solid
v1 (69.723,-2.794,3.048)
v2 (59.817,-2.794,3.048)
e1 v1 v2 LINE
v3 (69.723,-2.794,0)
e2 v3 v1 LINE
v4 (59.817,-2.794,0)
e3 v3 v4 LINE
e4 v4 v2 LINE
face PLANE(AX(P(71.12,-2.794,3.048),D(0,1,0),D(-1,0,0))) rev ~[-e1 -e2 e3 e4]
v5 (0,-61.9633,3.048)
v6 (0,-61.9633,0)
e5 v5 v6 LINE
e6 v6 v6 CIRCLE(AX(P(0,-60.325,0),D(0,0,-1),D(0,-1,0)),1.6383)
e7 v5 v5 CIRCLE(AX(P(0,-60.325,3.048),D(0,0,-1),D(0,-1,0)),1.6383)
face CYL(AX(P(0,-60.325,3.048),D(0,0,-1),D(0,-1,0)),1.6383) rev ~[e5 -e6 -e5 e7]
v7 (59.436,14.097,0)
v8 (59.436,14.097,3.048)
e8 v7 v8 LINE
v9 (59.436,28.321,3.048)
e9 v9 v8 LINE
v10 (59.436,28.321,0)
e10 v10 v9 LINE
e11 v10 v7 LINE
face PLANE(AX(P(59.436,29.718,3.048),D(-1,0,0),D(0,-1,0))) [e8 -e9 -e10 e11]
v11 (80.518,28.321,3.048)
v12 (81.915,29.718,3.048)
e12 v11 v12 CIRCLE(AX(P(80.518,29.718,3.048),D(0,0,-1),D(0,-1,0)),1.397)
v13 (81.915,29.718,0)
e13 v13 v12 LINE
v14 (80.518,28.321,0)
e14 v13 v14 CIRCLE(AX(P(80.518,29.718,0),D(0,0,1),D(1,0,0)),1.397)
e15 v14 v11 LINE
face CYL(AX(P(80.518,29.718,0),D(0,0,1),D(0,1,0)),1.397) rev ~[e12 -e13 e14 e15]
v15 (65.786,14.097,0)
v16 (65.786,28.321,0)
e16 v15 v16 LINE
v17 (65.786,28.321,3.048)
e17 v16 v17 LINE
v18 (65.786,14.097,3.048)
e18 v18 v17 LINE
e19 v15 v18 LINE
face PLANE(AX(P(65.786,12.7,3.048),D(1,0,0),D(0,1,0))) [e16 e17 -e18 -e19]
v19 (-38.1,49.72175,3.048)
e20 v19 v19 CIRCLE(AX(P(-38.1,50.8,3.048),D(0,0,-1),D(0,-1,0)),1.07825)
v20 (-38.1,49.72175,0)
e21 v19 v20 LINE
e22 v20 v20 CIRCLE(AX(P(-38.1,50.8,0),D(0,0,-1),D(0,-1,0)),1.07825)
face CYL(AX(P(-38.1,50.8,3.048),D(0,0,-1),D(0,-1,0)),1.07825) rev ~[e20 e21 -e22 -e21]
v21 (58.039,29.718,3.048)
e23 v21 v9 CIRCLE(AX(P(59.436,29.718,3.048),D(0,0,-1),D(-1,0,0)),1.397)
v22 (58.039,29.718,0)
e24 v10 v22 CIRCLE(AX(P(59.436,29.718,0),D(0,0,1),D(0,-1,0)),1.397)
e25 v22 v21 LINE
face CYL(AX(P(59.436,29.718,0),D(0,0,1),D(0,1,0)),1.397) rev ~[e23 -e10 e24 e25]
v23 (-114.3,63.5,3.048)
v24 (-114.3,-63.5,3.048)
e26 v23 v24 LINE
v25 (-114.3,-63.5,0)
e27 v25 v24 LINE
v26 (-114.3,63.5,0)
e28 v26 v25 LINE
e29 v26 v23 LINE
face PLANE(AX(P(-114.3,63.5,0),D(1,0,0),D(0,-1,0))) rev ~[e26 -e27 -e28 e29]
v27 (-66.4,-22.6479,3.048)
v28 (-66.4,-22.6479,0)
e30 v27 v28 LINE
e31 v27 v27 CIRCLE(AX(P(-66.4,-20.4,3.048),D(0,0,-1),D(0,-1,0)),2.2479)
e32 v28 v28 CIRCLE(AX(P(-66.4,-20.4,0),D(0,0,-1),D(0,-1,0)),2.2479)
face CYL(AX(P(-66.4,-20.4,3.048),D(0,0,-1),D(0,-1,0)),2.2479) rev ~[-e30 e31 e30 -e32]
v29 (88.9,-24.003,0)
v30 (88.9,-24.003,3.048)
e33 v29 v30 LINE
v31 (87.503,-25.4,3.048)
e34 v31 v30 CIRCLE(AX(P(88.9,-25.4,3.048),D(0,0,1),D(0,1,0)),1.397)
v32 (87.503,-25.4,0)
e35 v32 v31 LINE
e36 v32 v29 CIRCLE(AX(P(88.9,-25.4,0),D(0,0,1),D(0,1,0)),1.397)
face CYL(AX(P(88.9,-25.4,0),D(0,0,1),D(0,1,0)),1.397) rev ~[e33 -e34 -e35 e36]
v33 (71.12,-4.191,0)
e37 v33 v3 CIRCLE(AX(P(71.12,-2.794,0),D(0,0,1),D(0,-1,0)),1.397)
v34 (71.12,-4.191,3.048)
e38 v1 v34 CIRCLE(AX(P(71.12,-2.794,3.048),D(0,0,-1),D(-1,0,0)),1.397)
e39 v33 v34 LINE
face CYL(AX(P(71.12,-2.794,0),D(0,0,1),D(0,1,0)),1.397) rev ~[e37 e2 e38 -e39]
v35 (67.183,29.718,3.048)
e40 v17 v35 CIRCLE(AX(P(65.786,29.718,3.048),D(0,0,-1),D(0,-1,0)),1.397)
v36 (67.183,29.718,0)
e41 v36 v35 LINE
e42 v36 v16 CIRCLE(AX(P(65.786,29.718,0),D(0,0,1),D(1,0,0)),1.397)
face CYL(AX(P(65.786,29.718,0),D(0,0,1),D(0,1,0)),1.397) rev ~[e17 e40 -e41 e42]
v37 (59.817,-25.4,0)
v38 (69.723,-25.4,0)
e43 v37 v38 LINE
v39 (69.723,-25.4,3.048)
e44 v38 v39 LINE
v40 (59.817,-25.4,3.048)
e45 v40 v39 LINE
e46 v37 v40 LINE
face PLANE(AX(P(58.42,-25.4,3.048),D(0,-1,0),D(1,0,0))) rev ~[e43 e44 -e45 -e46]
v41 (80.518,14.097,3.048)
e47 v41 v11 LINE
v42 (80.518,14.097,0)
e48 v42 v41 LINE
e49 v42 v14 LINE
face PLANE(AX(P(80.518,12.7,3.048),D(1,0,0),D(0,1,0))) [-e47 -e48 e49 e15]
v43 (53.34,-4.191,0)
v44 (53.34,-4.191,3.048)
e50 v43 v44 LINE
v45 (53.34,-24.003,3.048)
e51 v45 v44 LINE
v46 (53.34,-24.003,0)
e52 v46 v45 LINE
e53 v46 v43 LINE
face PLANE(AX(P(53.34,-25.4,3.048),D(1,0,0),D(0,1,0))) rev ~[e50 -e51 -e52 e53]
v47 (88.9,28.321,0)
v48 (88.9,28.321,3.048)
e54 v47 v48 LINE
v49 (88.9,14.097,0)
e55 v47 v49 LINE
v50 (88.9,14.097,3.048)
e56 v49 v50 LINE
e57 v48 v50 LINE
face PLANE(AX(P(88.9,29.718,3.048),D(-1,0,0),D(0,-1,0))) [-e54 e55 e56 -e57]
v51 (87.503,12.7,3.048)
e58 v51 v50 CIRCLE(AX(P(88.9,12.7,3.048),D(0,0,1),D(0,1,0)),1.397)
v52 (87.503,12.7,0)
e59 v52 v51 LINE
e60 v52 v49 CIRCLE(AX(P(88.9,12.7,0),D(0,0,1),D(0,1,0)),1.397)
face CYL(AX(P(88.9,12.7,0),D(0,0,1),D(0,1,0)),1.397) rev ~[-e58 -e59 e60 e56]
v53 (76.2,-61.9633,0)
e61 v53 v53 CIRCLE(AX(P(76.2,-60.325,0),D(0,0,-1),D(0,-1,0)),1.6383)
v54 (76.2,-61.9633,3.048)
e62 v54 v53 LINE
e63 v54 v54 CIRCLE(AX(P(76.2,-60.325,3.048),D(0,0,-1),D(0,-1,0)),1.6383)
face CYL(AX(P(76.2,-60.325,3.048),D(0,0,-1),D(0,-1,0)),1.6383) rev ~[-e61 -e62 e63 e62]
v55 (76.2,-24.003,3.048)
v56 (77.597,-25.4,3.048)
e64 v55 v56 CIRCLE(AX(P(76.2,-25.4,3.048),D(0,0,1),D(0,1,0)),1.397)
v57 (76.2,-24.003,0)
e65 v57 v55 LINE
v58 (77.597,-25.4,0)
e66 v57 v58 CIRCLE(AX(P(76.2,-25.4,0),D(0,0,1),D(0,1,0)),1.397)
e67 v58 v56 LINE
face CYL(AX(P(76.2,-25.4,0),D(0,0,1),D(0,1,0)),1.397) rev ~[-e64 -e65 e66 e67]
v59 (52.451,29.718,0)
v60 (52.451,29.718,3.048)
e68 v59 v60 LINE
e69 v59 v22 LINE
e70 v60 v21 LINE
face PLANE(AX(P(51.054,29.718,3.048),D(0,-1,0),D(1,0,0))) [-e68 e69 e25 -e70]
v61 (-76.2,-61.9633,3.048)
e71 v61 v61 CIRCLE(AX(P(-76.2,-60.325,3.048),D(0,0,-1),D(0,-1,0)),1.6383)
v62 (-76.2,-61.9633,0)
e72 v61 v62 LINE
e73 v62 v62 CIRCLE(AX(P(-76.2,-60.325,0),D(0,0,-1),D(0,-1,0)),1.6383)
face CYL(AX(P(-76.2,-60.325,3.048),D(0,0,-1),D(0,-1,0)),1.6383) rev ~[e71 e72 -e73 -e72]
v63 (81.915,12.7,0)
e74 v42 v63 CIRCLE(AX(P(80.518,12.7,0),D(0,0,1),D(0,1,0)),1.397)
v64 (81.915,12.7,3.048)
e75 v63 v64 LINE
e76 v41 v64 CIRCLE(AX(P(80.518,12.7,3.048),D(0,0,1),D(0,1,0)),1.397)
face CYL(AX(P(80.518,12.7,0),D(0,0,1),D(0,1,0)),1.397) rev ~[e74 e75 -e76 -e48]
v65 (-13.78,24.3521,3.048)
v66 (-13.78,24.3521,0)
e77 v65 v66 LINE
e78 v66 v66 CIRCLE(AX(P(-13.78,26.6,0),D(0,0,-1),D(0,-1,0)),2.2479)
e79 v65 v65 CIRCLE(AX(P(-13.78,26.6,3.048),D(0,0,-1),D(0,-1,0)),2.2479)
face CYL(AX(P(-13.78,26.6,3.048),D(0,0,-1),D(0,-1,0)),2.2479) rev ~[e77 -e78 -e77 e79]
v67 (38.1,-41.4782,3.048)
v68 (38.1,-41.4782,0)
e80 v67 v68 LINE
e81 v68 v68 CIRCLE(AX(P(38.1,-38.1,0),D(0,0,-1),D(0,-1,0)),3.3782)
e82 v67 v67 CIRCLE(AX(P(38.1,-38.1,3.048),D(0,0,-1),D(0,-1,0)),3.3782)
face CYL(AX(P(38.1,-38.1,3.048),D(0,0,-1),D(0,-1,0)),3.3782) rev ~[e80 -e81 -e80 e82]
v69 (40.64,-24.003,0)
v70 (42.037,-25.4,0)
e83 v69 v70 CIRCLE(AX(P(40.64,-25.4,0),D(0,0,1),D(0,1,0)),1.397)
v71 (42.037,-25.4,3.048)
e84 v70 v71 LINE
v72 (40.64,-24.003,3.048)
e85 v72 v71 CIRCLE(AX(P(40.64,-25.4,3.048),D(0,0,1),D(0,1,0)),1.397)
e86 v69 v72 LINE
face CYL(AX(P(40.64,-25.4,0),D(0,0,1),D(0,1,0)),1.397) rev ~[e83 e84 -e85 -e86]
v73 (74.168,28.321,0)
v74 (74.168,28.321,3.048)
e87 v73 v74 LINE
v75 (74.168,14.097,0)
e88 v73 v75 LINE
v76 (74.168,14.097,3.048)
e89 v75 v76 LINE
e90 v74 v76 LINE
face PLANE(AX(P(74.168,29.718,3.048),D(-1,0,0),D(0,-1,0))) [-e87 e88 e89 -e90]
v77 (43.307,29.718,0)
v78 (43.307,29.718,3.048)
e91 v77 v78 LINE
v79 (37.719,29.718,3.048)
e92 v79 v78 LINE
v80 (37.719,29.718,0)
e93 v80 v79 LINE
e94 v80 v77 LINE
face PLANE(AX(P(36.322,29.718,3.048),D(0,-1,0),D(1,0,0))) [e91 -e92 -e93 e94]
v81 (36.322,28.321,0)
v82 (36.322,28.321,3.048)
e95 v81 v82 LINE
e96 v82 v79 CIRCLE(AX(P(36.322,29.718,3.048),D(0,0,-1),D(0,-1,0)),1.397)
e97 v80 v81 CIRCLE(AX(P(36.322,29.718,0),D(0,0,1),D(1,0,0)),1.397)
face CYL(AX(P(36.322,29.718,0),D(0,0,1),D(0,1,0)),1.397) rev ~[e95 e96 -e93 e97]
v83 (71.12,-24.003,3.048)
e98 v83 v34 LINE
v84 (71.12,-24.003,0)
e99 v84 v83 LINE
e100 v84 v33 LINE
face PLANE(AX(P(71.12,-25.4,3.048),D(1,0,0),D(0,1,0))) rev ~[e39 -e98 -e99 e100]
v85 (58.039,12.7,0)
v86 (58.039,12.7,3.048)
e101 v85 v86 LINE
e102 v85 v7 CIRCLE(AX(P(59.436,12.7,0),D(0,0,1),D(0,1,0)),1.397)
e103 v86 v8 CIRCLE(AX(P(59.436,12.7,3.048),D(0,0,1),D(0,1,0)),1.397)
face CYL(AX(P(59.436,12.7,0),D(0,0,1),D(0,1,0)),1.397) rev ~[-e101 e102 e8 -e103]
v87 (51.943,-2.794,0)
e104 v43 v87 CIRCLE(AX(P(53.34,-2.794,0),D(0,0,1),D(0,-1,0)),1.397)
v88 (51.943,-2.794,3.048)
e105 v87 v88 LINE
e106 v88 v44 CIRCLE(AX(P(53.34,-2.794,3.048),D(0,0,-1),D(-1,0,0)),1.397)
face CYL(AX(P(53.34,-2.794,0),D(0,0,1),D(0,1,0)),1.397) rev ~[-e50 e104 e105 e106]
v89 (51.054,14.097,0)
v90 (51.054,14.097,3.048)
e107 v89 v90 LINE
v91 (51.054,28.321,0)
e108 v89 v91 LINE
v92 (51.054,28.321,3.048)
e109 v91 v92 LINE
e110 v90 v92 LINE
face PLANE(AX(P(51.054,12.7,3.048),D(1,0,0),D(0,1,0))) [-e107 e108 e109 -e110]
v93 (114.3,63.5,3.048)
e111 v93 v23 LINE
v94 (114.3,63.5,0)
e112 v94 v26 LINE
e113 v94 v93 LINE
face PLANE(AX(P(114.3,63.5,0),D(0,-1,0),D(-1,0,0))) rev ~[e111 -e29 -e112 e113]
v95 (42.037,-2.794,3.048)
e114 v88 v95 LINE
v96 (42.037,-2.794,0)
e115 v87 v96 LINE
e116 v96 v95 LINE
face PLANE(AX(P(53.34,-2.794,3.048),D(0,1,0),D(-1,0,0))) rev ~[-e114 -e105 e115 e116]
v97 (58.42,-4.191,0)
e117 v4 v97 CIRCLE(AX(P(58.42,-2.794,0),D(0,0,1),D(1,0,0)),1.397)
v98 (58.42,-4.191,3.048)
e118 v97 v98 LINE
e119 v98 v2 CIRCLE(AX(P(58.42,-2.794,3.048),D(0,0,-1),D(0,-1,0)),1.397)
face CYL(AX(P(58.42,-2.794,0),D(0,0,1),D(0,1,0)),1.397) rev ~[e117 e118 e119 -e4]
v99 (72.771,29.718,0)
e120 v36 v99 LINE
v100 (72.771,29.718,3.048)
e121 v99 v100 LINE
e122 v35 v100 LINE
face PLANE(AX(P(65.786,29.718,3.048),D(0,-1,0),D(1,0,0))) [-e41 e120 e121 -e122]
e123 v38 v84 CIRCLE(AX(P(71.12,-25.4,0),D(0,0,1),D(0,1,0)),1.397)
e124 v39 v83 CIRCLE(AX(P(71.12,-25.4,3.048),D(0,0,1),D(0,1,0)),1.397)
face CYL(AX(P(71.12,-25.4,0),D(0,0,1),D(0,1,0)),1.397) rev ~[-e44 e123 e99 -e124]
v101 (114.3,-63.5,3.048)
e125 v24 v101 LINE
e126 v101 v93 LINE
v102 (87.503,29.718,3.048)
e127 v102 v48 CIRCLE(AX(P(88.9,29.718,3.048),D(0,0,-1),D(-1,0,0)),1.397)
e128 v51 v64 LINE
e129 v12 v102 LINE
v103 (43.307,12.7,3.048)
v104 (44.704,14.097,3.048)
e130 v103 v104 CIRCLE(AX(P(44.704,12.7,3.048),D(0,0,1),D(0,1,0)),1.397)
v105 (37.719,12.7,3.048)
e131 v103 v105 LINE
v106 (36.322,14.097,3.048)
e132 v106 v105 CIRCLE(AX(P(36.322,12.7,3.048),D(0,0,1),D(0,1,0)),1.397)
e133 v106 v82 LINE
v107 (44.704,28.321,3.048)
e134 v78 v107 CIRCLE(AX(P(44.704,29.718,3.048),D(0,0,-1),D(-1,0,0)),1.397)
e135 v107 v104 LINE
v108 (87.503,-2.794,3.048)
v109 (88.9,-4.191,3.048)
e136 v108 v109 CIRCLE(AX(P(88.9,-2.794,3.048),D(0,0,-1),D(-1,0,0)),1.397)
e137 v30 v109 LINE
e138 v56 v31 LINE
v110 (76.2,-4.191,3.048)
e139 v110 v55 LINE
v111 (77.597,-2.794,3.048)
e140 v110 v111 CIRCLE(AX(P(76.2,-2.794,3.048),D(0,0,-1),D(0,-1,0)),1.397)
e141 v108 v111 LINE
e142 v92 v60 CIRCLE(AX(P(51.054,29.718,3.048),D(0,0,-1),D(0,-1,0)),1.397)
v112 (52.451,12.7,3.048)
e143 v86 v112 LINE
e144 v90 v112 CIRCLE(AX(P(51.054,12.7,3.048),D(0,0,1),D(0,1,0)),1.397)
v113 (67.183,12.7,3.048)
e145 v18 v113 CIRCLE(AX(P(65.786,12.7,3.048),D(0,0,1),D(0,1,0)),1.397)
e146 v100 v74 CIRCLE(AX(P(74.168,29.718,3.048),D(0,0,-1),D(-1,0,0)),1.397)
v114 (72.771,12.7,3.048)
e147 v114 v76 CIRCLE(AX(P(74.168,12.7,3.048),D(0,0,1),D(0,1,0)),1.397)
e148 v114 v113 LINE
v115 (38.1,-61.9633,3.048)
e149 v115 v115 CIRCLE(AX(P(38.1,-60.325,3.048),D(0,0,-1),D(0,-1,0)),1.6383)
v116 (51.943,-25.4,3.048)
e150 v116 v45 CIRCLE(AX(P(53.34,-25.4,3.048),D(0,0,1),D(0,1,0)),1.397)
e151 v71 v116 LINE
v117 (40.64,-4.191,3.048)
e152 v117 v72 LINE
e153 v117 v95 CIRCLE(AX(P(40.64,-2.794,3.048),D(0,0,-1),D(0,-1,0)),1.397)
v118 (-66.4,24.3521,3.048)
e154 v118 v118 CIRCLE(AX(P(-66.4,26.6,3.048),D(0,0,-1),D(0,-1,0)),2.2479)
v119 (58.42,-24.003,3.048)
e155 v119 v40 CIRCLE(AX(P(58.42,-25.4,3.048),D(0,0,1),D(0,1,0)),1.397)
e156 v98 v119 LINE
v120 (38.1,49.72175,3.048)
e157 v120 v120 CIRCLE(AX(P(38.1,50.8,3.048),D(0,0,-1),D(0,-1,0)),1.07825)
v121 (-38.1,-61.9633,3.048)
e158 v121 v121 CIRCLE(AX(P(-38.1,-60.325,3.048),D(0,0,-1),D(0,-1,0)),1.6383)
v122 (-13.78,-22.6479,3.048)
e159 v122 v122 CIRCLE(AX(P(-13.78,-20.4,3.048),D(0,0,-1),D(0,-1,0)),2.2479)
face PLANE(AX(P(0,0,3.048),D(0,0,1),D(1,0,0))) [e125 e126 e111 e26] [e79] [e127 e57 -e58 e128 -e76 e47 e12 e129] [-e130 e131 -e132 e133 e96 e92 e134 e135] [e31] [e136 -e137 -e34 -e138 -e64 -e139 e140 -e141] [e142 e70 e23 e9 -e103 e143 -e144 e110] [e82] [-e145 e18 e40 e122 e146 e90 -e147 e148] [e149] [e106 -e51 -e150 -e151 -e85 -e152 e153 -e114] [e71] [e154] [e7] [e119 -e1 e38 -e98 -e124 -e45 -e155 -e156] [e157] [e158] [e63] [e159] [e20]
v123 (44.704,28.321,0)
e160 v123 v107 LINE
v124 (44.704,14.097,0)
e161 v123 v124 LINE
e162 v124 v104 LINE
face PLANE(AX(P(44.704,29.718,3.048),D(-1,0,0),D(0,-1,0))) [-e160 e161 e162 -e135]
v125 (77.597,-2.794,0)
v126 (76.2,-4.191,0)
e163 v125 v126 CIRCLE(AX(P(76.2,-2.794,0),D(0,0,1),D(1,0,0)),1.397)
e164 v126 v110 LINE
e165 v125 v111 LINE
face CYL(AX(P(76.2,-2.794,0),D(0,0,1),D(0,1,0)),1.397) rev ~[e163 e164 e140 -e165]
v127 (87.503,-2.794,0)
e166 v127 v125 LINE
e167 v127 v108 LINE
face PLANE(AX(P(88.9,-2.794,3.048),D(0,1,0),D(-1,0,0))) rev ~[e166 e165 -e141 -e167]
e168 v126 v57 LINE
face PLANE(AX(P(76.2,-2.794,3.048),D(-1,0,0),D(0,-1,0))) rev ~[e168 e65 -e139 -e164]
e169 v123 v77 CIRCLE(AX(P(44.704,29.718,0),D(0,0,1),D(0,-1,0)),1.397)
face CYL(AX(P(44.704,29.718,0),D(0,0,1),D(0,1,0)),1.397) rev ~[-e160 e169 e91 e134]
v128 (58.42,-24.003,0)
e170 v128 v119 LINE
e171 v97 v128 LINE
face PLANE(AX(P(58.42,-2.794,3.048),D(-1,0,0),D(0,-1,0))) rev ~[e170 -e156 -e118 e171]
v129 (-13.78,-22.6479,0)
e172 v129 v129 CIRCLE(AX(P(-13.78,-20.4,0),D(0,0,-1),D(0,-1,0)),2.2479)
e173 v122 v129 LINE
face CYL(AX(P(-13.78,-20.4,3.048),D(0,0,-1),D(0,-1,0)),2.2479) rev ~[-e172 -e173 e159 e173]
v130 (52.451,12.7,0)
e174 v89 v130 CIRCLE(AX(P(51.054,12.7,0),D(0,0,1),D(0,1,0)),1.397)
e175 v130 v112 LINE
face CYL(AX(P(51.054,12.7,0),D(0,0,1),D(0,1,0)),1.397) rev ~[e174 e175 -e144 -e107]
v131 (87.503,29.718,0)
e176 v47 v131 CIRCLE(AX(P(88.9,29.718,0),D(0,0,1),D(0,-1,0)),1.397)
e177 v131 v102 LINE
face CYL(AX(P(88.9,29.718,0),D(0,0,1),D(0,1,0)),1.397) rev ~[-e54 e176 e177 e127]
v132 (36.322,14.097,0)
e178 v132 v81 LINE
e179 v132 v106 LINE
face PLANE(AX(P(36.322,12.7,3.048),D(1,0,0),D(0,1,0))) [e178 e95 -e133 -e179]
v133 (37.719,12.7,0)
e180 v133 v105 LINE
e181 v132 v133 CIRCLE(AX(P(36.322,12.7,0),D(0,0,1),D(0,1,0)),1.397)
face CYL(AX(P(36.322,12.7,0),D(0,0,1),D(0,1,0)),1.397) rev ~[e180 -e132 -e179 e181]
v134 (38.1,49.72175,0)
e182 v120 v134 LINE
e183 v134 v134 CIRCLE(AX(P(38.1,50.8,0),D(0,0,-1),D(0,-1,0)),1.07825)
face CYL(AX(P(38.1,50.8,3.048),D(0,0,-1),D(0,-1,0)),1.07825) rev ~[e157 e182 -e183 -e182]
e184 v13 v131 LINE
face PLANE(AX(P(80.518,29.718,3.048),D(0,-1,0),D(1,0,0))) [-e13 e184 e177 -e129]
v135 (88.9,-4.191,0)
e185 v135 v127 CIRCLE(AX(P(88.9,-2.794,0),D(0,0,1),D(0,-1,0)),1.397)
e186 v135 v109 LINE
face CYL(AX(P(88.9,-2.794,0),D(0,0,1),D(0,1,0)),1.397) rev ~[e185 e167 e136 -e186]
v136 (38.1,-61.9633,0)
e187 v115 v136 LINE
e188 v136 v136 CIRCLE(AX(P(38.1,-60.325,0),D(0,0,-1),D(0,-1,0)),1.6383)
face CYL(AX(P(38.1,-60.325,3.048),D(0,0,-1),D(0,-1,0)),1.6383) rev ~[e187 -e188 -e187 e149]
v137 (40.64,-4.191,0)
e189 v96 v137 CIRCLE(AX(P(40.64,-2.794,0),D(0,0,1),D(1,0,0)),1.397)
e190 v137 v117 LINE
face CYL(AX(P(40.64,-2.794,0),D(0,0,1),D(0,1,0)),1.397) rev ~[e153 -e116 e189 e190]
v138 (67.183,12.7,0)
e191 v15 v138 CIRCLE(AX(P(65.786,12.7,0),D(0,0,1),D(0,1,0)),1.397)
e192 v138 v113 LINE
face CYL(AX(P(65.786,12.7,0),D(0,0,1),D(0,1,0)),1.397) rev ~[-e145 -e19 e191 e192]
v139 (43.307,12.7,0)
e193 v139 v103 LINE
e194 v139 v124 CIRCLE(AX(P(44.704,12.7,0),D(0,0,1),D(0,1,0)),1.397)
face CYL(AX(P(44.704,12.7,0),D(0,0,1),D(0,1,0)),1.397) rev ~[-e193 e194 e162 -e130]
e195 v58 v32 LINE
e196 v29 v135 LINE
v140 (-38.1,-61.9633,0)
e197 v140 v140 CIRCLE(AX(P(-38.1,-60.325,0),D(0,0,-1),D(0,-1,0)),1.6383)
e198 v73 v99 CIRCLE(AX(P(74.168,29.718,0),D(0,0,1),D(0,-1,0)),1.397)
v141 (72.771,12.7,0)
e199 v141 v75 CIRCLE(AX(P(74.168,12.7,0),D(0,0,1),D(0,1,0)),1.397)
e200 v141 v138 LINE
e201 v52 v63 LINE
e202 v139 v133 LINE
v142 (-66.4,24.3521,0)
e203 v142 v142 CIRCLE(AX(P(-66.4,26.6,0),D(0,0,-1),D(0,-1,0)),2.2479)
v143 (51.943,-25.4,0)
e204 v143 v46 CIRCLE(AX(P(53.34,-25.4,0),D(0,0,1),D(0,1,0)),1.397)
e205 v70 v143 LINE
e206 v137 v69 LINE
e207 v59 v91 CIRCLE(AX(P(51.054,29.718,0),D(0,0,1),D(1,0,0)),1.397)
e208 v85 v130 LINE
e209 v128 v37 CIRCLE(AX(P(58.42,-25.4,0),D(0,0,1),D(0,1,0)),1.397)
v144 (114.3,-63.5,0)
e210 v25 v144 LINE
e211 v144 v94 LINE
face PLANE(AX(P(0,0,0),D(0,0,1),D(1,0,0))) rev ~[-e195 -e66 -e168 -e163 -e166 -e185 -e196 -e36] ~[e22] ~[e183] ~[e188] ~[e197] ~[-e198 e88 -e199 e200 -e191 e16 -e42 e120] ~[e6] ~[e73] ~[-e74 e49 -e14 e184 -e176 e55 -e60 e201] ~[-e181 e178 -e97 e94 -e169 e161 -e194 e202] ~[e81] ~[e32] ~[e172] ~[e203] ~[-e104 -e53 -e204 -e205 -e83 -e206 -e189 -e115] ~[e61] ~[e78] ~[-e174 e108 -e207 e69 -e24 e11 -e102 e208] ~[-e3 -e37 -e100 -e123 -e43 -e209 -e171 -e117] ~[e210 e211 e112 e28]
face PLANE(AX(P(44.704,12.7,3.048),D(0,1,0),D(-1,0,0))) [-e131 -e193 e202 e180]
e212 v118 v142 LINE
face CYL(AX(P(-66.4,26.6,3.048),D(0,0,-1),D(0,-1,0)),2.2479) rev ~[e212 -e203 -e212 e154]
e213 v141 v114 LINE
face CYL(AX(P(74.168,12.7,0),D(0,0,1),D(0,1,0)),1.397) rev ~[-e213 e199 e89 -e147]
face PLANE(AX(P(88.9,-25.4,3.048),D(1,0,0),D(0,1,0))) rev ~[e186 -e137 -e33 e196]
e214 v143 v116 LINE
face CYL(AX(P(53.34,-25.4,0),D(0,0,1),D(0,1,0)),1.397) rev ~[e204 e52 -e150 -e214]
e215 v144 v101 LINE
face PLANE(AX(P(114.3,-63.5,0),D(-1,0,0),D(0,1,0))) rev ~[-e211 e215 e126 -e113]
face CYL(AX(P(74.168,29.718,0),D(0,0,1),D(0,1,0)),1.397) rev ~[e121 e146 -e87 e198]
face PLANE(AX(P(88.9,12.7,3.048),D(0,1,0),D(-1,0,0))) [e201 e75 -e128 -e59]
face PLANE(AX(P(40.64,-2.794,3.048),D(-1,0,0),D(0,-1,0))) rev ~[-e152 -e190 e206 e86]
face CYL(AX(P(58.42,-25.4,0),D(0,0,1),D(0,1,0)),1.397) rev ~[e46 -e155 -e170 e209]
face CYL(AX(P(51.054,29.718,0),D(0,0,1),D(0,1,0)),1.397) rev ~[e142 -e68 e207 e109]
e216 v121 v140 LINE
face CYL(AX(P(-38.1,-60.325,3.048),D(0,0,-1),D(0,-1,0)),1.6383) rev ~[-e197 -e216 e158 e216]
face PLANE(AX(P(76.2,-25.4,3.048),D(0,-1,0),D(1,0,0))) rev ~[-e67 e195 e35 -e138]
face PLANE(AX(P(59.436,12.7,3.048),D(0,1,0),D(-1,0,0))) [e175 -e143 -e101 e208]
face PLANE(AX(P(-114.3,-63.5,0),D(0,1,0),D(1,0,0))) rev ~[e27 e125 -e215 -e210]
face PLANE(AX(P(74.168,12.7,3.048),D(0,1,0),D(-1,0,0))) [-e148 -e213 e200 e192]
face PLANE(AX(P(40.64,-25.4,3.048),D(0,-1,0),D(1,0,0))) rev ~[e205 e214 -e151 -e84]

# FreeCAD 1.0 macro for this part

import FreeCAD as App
import Part
import Sketcher
Q = App.Units.Quantity

doc = App.newDocument("Part")
body = doc.addObject("PartDesign::Body", "Body")

# Sketch on XY plane
sketch1 = body.newObject("Sketcher::SketchObject", "Sketch")
sketch1.AttachmentSupport = (doc.getObject("XY_Plane"), [""])
sketch1.MapMode = "FlatFace"
sketch1.addGeometry([
    Part.LineSegment(App.Vector(114.3, -63.5, 0), App.Vector(114.3, 63.5, 0)),
    Part.LineSegment(App.Vector(114.3, 63.5, 0), App.Vector(-114.3, 63.5, 0)),
    Part.LineSegment(App.Vector(-114.3, 63.5, 0), App.Vector(-114.3, -63.5, 0)),
    Part.LineSegment(App.Vector(-114.3, -63.5, 0), App.Vector(114.3, -63.5, 0)),
], False)
sketch1.addConstraint([
    Sketcher.Constraint("Coincident", 0, 2, 1, 1),
    Sketcher.Constraint("Coincident", 1, 2, 2, 1),
    Sketcher.Constraint("Coincident", 2, 2, 3, 1),
    Sketcher.Constraint("Coincident", 3, 2, 0, 1),
    Sketcher.Constraint("Vertical", 0),
    Sketcher.Constraint("Horizontal", 1),
    Sketcher.Constraint("Vertical", 2),
    Sketcher.Constraint("Horizontal", 3),
    Sketcher.Constraint("Symmetric", 0, 2, 2, 2, -1, 1),
    Sketcher.Constraint("DistanceX", 1, 2, 1, 1, Q("9 in")),
    Sketcher.Constraint("DistanceY", 0, 1, 0, 2, Q("5 in")),
])
pad1 = body.newObject("PartDesign::Pad", "Pad")
pad1.Profile = sketch1
pad1.Length = Q("0.12 in")

# Sketch on XY plane
sketch2 = body.newObject("Sketcher::SketchObject", "Sketch001")
sketch2.AttachmentSupport = (doc.getObject("XY_Plane"), [""])
sketch2.MapMode = "FlatFace"
sketch2.AttachmentOffset = App.Placement(App.Vector(0, 0, 0.12 * 25.4), App.Rotation())
sketch2.addGeometry([
    Part.Circle(App.Vector(-76.2, -60.325, 0), App.Vector(0, 0, 1), 1.6383),  # 0
    Part.Circle(App.Vector(-38.1, -60.325, 0), App.Vector(0, 0, 1), 1.6383),  # 1
    Part.Circle(App.Vector(0, -60.325, 0), App.Vector(0, 0, 1), 1.6383),  # 2
    Part.Circle(App.Vector(38.1, -60.325, 0), App.Vector(0, 0, 1), 1.6383),  # 3
    Part.Circle(App.Vector(76.2, -60.325, 0), App.Vector(0, 0, 1), 1.6383),  # 4
], False)
sketch2.addConstraint([
    Sketcher.Constraint("Equal", 0, 1),
    Sketcher.Constraint("Equal", 1, 2),
    Sketcher.Constraint("Equal", 2, 3),
    Sketcher.Constraint("Equal", 3, 4),
    Sketcher.Constraint("Symmetric", 1, 3, 3, 3, -2),
    Sketcher.Constraint("Symmetric", 0, 3, 4, 3, -2),
    Sketcher.Constraint("PointOnObject", 2, 3, -2),
    Sketcher.Constraint("Horizontal", 0, 3, 1, 3),
    Sketcher.Constraint("Horizontal", 1, 3, 2, 3),
    Sketcher.Constraint("Diameter", 0, Q("0.129 in")),
    Sketcher.Constraint("DistanceX", 0, 3, -1, 1, Q("3 in")),
    Sketcher.Constraint("DistanceX", 1, 3, 3, 3, Q("3 in")),
    Sketcher.Constraint("DistanceY", 0, 3, -1, 1, Q("2.375 in")),
])
doc.recompute()
hole = body.newObject("PartDesign::Hole", "Hole")
hole.Profile = sketch2
hole.ThreadType = "None"
hole.Diameter = Q("0.129 in")
hole.DepthType = "Dimension"
hole.Depth = Q("0.12 in")
hole.DrillPoint = "Flat"

# Sketch on XY plane
sketch3 = body.newObject("Sketcher::SketchObject", "Sketch002")
sketch3.AttachmentSupport = (doc.getObject("XY_Plane"), [""])
sketch3.MapMode = "FlatFace"
sketch3.AttachmentOffset = App.Placement(App.Vector(0, 0, 0.12 * 25.4), App.Rotation())
sketch3.addGeometry([
    Part.Circle(App.Vector(-66.4, 26.6, 0), App.Vector(0, 0, 1), 2.2479),
    Part.Circle(App.Vector(-13.78, 26.6, 0), App.Vector(0, 0, 1), 2.2479),
    Part.Circle(App.Vector(-13.78, -20.4, 0), App.Vector(0, 0, 1), 2.2479),
    Part.Circle(App.Vector(-66.4, -20.4, 0), App.Vector(0, 0, 1), 2.2479),
], False)
sketch3.addConstraint([
    Sketcher.Constraint("Equal", 0, 1),
    Sketcher.Constraint("Equal", 1, 2),
    Sketcher.Constraint("Equal", 2, 3),
    Sketcher.Constraint("Horizontal", 0, 3, 1, 3),
    Sketcher.Constraint("Horizontal", 2, 3, 3, 3),
    Sketcher.Constraint("Vertical", 1, 3, 2, 3),
    Sketcher.Constraint("Vertical", 0, 3, 3, 3),
    Sketcher.Constraint("Diameter", 0, Q("0.177 in")),
    Sketcher.Constraint("DistanceY", 2, 3, 1, 3, Q("1.8504 in")),
    Sketcher.Constraint("DistanceX", 0, 3, -1, 1, 66.4),
    Sketcher.Constraint("DistanceY", -1, 1, 0, 3, 26.6),
    Sketcher.Constraint("DistanceX", 1, 3, -1, 1, 13.78),
])
doc.recompute()
hole2 = body.newObject("PartDesign::Hole", "Hole001")
hole2.Profile = sketch3
hole2.ThreadType = "None"
hole2.Diameter = Q("0.177 in")
hole2.DepthType = "Dimension"
hole2.Depth = Q("0.12 in")
hole2.DrillPoint = "Flat"

# Sketch on XY plane
sketch4 = body.newObject("Sketcher::SketchObject", "Sketch003")
sketch4.AttachmentSupport = (doc.getObject("XY_Plane"), [""])
sketch4.MapMode = "FlatFace"
sketch4.AttachmentOffset = App.Placement(App.Vector(0, 0, 0.12 * 25.4), App.Rotation())
sketch4.addGeometry([
    Part.LineSegment(App.Vector(76.2, -25.4, 0), App.Vector(88.9, -25.4, 0)),  # 0
    Part.LineSegment(App.Vector(88.9, -25.4, 0), App.Vector(88.9, -2.794, 0)),  # 1
    Part.LineSegment(App.Vector(88.9, -2.794, 0), App.Vector(76.2, -2.794, 0)),  # 2
    Part.LineSegment(App.Vector(76.2, -2.794, 0), App.Vector(76.2, -25.4, 0)),  # 3
    Part.LineSegment(App.Vector(53.34, -25.4, 0), App.Vector(53.34, -2.794, 0)),  # 4
    Part.LineSegment(App.Vector(53.34, -2.794, 0), App.Vector(40.64, -2.794, 0)),  # 5
    Part.LineSegment(App.Vector(40.64, -2.794, 0), App.Vector(40.64, -25.4, 0)),  # 6
    Part.LineSegment(App.Vector(40.64, -25.4, 0), App.Vector(53.34, -25.4, 0)),  # 7
    Part.LineSegment(App.Vector(71.12, -25.4, 0), App.Vector(71.12, -2.794, 0)),  # 8
    Part.LineSegment(App.Vector(71.12, -2.794, 0), App.Vector(58.42, -2.794, 0)),  # 9
    Part.LineSegment(App.Vector(58.42, -2.794, 0), App.Vector(58.42, -25.4, 0)),  # 10
    Part.LineSegment(App.Vector(58.42, -25.4, 0), App.Vector(71.12, -25.4, 0)),  # 11
], False)
sketch4.addConstraint([
    Sketcher.Constraint("Coincident", 0, 2, 1, 1),
    Sketcher.Constraint("Coincident", 1, 2, 2, 1),
    Sketcher.Constraint("Coincident", 2, 2, 3, 1),
    Sketcher.Constraint("Coincident", 3, 2, 0, 1),
    Sketcher.Constraint("Coincident", 4, 2, 5, 1),
    Sketcher.Constraint("Coincident", 5, 2, 6, 1),
    Sketcher.Constraint("Coincident", 6, 2, 7, 1),
    Sketcher.Constraint("Coincident", 7, 2, 4, 1),
    Sketcher.Constraint("Coincident", 8, 2, 9, 1),
    Sketcher.Constraint("Coincident", 9, 2, 10, 1),
    Sketcher.Constraint("Coincident", 10, 2, 11, 1),
    Sketcher.Constraint("Coincident", 11, 2, 8, 1),
    Sketcher.Constraint("Horizontal", 0),
    Sketcher.Constraint("Vertical", 1),
    Sketcher.Constraint("Horizontal", 2),
    Sketcher.Constraint("Vertical", 3),
    Sketcher.Constraint("Vertical", 4),
    Sketcher.Constraint("Horizontal", 5),
    Sketcher.Constraint("Vertical", 6),
    Sketcher.Constraint("Horizontal", 7),
    Sketcher.Constraint("Vertical", 8),
    Sketcher.Constraint("Horizontal", 9),
    Sketcher.Constraint("Vertical", 10),
    Sketcher.Constraint("Horizontal", 11),
    Sketcher.Constraint("Horizontal", 2, 2, 4, 2),
    Sketcher.Constraint("Horizontal", 3, 2, 6, 2),
    Sketcher.Constraint("Horizontal", 5, 2, 8, 2),
    Sketcher.Constraint("Horizontal", 7, 2, 10, 2),
    Sketcher.Constraint("Equal", 2, 5),
    Sketcher.Constraint("Equal", 7, 9),
    Sketcher.Constraint("DistanceX", 0, 1, 0, 2, Q("0.5 in")),
    Sketcher.Constraint("DistanceY", 0, 2, -1, 1, Q("1 in")),
    Sketcher.Constraint("DistanceY", 1, 1, 1, 2, Q("0.89 in")),
    Sketcher.Constraint("DistanceX", 8, 2, 2, 2, Q("0.2 in")),
    Sketcher.Constraint("DistanceX", 4, 2, 9, 2, Q("0.2 in")),
    Sketcher.Constraint("DistanceX", -1, 1, 2, 2, Q("3 in")),
])
pocket1 = body.newObject("PartDesign::Pocket", "Pocket")
pocket1.Profile = sketch4
pocket1.Length = Q("0.12 in")

# Sketch on XY plane
sketch5 = body.newObject("Sketcher::SketchObject", "Sketch004")
sketch5.AttachmentSupport = (doc.getObject("XY_Plane"), [""])
sketch5.MapMode = "FlatFace"
sketch5.AttachmentOffset = App.Placement(App.Vector(0, 0, 0.12 * 25.4), App.Rotation())
sketch5.addGeometry([
    Part.LineSegment(App.Vector(44.704, 12.7, 0), App.Vector(44.704, 29.718, 0)),  # 0
    Part.LineSegment(App.Vector(44.704, 29.718, 0), App.Vector(36.322, 29.718, 0)),  # 1
    Part.LineSegment(App.Vector(36.322, 29.718, 0), App.Vector(36.322, 12.7, 0)),  # 2
    Part.LineSegment(App.Vector(36.322, 12.7, 0), App.Vector(44.704, 12.7, 0)),  # 3
    Part.LineSegment(App.Vector(59.436, 12.7, 0), App.Vector(59.436, 29.718, 0)),  # 4
    Part.LineSegment(App.Vector(59.436, 29.718, 0), App.Vector(51.054, 29.718, 0)),  # 5
    Part.LineSegment(App.Vector(51.054, 29.718, 0), App.Vector(51.054, 12.7, 0)),  # 6
    Part.LineSegment(App.Vector(51.054, 12.7, 0), App.Vector(59.436, 12.7, 0)),  # 7
    Part.LineSegment(App.Vector(74.168, 12.7, 0), App.Vector(74.168, 29.718, 0)),  # 8
    Part.LineSegment(App.Vector(74.168, 29.718, 0), App.Vector(65.786, 29.718, 0)),  # 9
    Part.LineSegment(App.Vector(65.786, 29.718, 0), App.Vector(65.786, 12.7, 0)),  # 10
    Part.LineSegment(App.Vector(65.786, 12.7, 0), App.Vector(74.168, 12.7, 0)),  # 11
    Part.LineSegment(App.Vector(80.518, 12.7, 0), App.Vector(88.9, 12.7, 0)),  # 12
    Part.LineSegment(App.Vector(88.9, 12.7, 0), App.Vector(88.9, 29.718, 0)),  # 13
    Part.LineSegment(App.Vector(88.9, 29.718, 0), App.Vector(80.518, 29.718, 0)),  # 14
    Part.LineSegment(App.Vector(80.518, 29.718, 0), App.Vector(80.518, 12.7, 0)),  # 15
], False)
sketch5.addConstraint([
    Sketcher.Constraint("Coincident", 0, 2, 1, 1),
    Sketcher.Constraint("Coincident", 1, 2, 2, 1),
    Sketcher.Constraint("Coincident", 2, 2, 3, 1),
    Sketcher.Constraint("Coincident", 3, 2, 0, 1),
    Sketcher.Constraint("Coincident", 4, 2, 5, 1),
    Sketcher.Constraint("Coincident", 5, 2, 6, 1),
    Sketcher.Constraint("Coincident", 6, 2, 7, 1),
    Sketcher.Constraint("Coincident", 7, 2, 4, 1),
    Sketcher.Constraint("Coincident", 8, 2, 9, 1),
    Sketcher.Constraint("Coincident", 9, 2, 10, 1),
    Sketcher.Constraint("Coincident", 10, 2, 11, 1),
    Sketcher.Constraint("Coincident", 11, 2, 8, 1),
    Sketcher.Constraint("Coincident", 12, 2, 13, 1),
    Sketcher.Constraint("Coincident", 13, 2, 14, 1),
    Sketcher.Constraint("Coincident", 14, 2, 15, 1),
    Sketcher.Constraint("Coincident", 15, 2, 12, 1),
    Sketcher.Constraint("Vertical", 0),
    Sketcher.Constraint("Horizontal", 1),
    Sketcher.Constraint("Vertical", 2),
    Sketcher.Constraint("Horizontal", 3),
    Sketcher.Constraint("Vertical", 4),
    Sketcher.Constraint("Horizontal", 5),
    Sketcher.Constraint("Vertical", 6),
    Sketcher.Constraint("Horizontal", 7),
    Sketcher.Constraint("Vertical", 8),
    Sketcher.Constraint("Horizontal", 9),
    Sketcher.Constraint("Vertical", 10),
    Sketcher.Constraint("Horizontal", 11),
    Sketcher.Constraint("Horizontal", 12),
    Sketcher.Constraint("Vertical", 13),
    Sketcher.Constraint("Horizontal", 14),
    Sketcher.Constraint("Vertical", 15),
    Sketcher.Constraint("Horizontal", 1, 2, 4, 2),
    Sketcher.Constraint("Horizontal", 3, 2, 6, 2),
    Sketcher.Constraint("Horizontal", 5, 2, 8, 2),
    Sketcher.Constraint("Horizontal", 7, 2, 10, 2),
    Sketcher.Constraint("Horizontal", 11, 2, 12, 2),
    Sketcher.Constraint("Horizontal", 9, 2, 13, 2),
    Sketcher.Constraint("Equal", 3, 5),
    Sketcher.Constraint("Equal", 7, 9),
    Sketcher.Constraint("Equal", 11, 12),
    Sketcher.Constraint("DistanceX", 1, 2, 1, 1, Q("0.33 in")),
    Sketcher.Constraint("DistanceY", 0, 1, 0, 2, Q("0.67 in")),
    Sketcher.Constraint("DistanceX", 0, 2, 5, 2, Q("0.25 in")),
    Sketcher.Constraint("DistanceX", 4, 2, 9, 2, Q("0.25 in")),
    Sketcher.Constraint("DistanceX", 8, 2, 14, 2, Q("0.25 in")),
    Sketcher.Constraint("DistanceY", -1, 1, 2, 2, Q("0.5 in")),
    Sketcher.Constraint("DistanceX", -1, 1, 12, 2, Q("3.5 in")),
])
pocket2 = body.newObject("PartDesign::Pocket", "Pocket001")
pocket2.Profile = sketch5
pocket2.Length = Q("0.12 in")

# Sketch on XY plane
sketch6 = body.newObject("Sketcher::SketchObject", "Sketch005")
sketch6.AttachmentSupport = (doc.getObject("XY_Plane"), [""])
sketch6.MapMode = "FlatFace"
sketch6.AttachmentOffset = App.Placement(App.Vector(0, 0, 0.12 * 25.4), App.Rotation())
sketch6.addGeometry([
    Part.Circle(App.Vector(-38.1, 50.8, 0), App.Vector(0, 0, 1), 1.07825),
    Part.Circle(App.Vector(38.1, 50.8, 0), App.Vector(0, 0, 1), 1.07825),
], False)
sketch6.addConstraint([
    Sketcher.Constraint("Equal", 0, 1),
    Sketcher.Constraint("Symmetric", 0, 3, 1, 3, -2),
    Sketcher.Constraint("DistanceY", -1, 1, 0, 3, Q("2 in")),
    Sketcher.Constraint("DistanceX", 0, 3, 1, 3, Q("3 in")),
    Sketcher.Constraint("Diameter", 0, Q("0.0849 in")),
])
doc.recompute()
hole3 = body.newObject("PartDesign::Hole", "Hole002")
hole3.Profile = sketch6
hole3.ThreadType = "None"
hole3.Diameter = Q("0.0849016 in")
hole3.DepthType = "Dimension"
hole3.Depth = Q("0.349 in")
hole3.DrillPoint = "Flat"

# Sketch on XY plane
sketch7 = body.newObject("Sketcher::SketchObject", "Sketch006")
sketch7.AttachmentSupport = (doc.getObject("XY_Plane"), [""])
sketch7.MapMode = "FlatFace"
sketch7.addGeometry([
    Part.Circle(App.Vector(40.64, -2.794, 0), App.Vector(0, 0, 1), 1.397),  # 0
    Part.Circle(App.Vector(40.64, -25.4, 0), App.Vector(0, 0, 1), 1.397),  # 1
    Part.Circle(App.Vector(53.34, -25.4, 0), App.Vector(0, 0, 1), 1.397),  # 2
    Part.Circle(App.Vector(53.34, -2.794, 0), App.Vector(0, 0, 1), 1.397),  # 3
    Part.Circle(App.Vector(58.42, -2.794, 0), App.Vector(0, 0, 1), 1.397),  # 4
    Part.Circle(App.Vector(58.42, -25.4, 0), App.Vector(0, 0, 1), 1.397),  # 5
    Part.Circle(App.Vector(71.12, -25.4, 0), App.Vector(0, 0, 1), 1.397),  # 6
    Part.Circle(App.Vector(71.12, -2.794, 0), App.Vector(0, 0, 1), 1.397),  # 7
    Part.Circle(App.Vector(76.2, -2.794, 0), App.Vector(0, 0, 1), 1.397),  # 8
    Part.Circle(App.Vector(76.2, -25.4, 0), App.Vector(0, 0, 1), 1.397),  # 9
    Part.Circle(App.Vector(88.9, -25.4, 0), App.Vector(0, 0, 1), 1.397),  # 10
    Part.Circle(App.Vector(88.9, -2.794, 0), App.Vector(0, 0, 1), 1.397),  # 11
    Part.Circle(App.Vector(80.518, 29.718, 0), App.Vector(0, 0, 1), 1.397),  # 12
    Part.Circle(App.Vector(88.9, 29.718, 0), App.Vector(0, 0, 1), 1.397),  # 13
    Part.Circle(App.Vector(88.9, 12.7, 0), App.Vector(0, 0, 1), 1.397),  # 14
    Part.Circle(App.Vector(80.518, 12.7, 0), App.Vector(0, 0, 1), 1.397),  # 15
    Part.Circle(App.Vector(74.168, 12.7, 0), App.Vector(0, 0, 1), 1.397),  # 16
    Part.Circle(App.Vector(74.168, 29.718, 0), App.Vector(0, 0, 1), 1.397),  # 17
    Part.Circle(App.Vector(65.786, 29.718, 0), App.Vector(0, 0, 1), 1.397),  # 18
    Part.Circle(App.Vector(65.786, 12.7, 0), App.Vector(0, 0, 1), 1.397),  # 19
    Part.Circle(App.Vector(59.436, 12.7, 0), App.Vector(0, 0, 1), 1.397),  # 20
    Part.Circle(App.Vector(59.436, 29.718, 0), App.Vector(0, 0, 1), 1.397),  # 21
    Part.Circle(App.Vector(51.054, 29.718, 0), App.Vector(0, 0, 1), 1.397),  # 22
    Part.Circle(App.Vector(51.054, 12.7, 0), App.Vector(0, 0, 1), 1.397),  # 23
    Part.Circle(App.Vector(44.704, 12.7, 0), App.Vector(0, 0, 1), 1.397),  # 24
    Part.Circle(App.Vector(36.322, 12.7, 0), App.Vector(0, 0, 1), 1.397),  # 25
    Part.Circle(App.Vector(36.322, 29.718, 0), App.Vector(0, 0, 1), 1.397),  # 26
    Part.Circle(App.Vector(44.704, 29.718, 0), App.Vector(0, 0, 1), 1.397),  # 27
], False)
sketch7.addConstraint([
    Sketcher.Constraint("Equal", 0, 1),
    Sketcher.Constraint("Equal", 1, 2),
    Sketcher.Constraint("Equal", 2, 3),
    Sketcher.Constraint("Equal", 3, 4),
    Sketcher.Constraint("Equal", 4, 5),
    Sketcher.Constraint("Equal", 5, 6),
    Sketcher.Constraint("Equal", 6, 7),
    Sketcher.Constraint("Equal", 7, 8),
    Sketcher.Constraint("Equal", 8, 9),
    Sketcher.Constraint("Equal", 9, 10),
    Sketcher.Constraint("Equal", 10, 11),
    Sketcher.Constraint("Equal", 11, 12),
    Sketcher.Constraint("Equal", 12, 13),
    Sketcher.Constraint("Equal", 13, 14),
    Sketcher.Constraint("Equal", 14, 15),
    Sketcher.Constraint("Equal", 15, 16),
    Sketcher.Constraint("Equal", 16, 17),
    Sketcher.Constraint("Equal", 17, 18),
    Sketcher.Constraint("Equal", 18, 19),
    Sketcher.Constraint("Equal", 19, 20),
    Sketcher.Constraint("Equal", 20, 21),
    Sketcher.Constraint("Equal", 21, 22),
    Sketcher.Constraint("Equal", 22, 23),
    Sketcher.Constraint("Equal", 23, 24),
    Sketcher.Constraint("Equal", 24, 25),
    Sketcher.Constraint("Equal", 25, 26),
    Sketcher.Constraint("Equal", 26, 27),
    Sketcher.Constraint("Horizontal", 1, 3, 2, 3),
    Sketcher.Constraint("Horizontal", 0, 3, 3, 3),
    Sketcher.Constraint("Horizontal", 3, 3, 4, 3),
    Sketcher.Constraint("Horizontal", 2, 3, 5, 3),
    Sketcher.Constraint("Horizontal", 5, 3, 6, 3),
    Sketcher.Constraint("Horizontal", 4, 3, 7, 3),
    Sketcher.Constraint("Horizontal", 7, 3, 8, 3),
    Sketcher.Constraint("Horizontal", 6, 3, 9, 3),
    Sketcher.Constraint("Horizontal", 9, 3, 10, 3),
    Sketcher.Constraint("Horizontal", 8, 3, 11, 3),
    Sketcher.Constraint("Horizontal", 12, 3, 13, 3),
    Sketcher.Constraint("Horizontal", 14, 3, 15, 3),
    Sketcher.Constraint("Horizontal", 15, 3, 16, 3),
    Sketcher.Constraint("Horizontal", 13, 3, 17, 3),
    Sketcher.Constraint("Horizontal", 17, 3, 18, 3),
    Sketcher.Constraint("Horizontal", 16, 3, 19, 3),
    Sketcher.Constraint("Horizontal", 19, 3, 20, 3),
    Sketcher.Constraint("Horizontal", 18, 3, 21, 3),
    Sketcher.Constraint("Horizontal", 21, 3, 22, 3),
    Sketcher.Constraint("Horizontal", 20, 3, 23, 3),
    Sketcher.Constraint("Horizontal", 23, 3, 24, 3),
    Sketcher.Constraint("Horizontal", 24, 3, 25, 3),
    Sketcher.Constraint("Horizontal", 22, 3, 26, 3),
    Sketcher.Constraint("Horizontal", 26, 3, 27, 3),
    Sketcher.Constraint("Vertical", 0, 3, 1, 3),
    Sketcher.Constraint("Vertical", 2, 3, 3, 3),
    Sketcher.Constraint("Vertical", 4, 3, 5, 3),
    Sketcher.Constraint("Vertical", 6, 3, 7, 3),
    Sketcher.Constraint("Vertical", 8, 3, 9, 3),
    Sketcher.Constraint("Vertical", 10, 3, 11, 3),
    Sketcher.Constraint("Vertical", 11, 3, 13, 3),
    Sketcher.Constraint("Vertical", 13, 3, 14, 3),
    Sketcher.Constraint("Vertical", 12, 3, 15, 3),
    Sketcher.Constraint("Vertical", 16, 3, 17, 3),
    Sketcher.Constraint("Vertical", 18, 3, 19, 3),
    Sketcher.Constraint("Vertical", 20, 3, 21, 3),
    Sketcher.Constraint("Vertical", 22, 3, 23, 3),
    Sketcher.Constraint("Vertical", 25, 3, 26, 3),
    Sketcher.Constraint("Vertical", 24, 3, 27, 3),
    Sketcher.Constraint("Diameter", 0, Q("0.11 in")),
    Sketcher.Constraint("DistanceY", 1, 3, -1, 1, Q("1 in")),
    Sketcher.Constraint("DistanceX", -1, 1, 8, 3, Q("3 in")),
    Sketcher.Constraint("DistanceX", -1, 1, 0, 3, Q("1.6 in")),
    Sketcher.Constraint("DistanceX", -1, 1, 2, 3, Q("2.1 in")),
    Sketcher.Constraint("DistanceX", -1, 1, 4, 3, Q("2.3 in")),
    Sketcher.Constraint("DistanceX", -1, 1, 6, 3, Q("2.8 in")),
    Sketcher.Constraint("DistanceX", -1, 1, 10, 3, Q("3.5 in")),
    Sketcher.Constraint("DistanceY", -1, 1, 14, 3, Q("0.5 in")),
    Sketcher.Constraint("DistanceY", 0, 3, -1, 1, Q("0.11 in")),
    Sketcher.Constraint("DistanceX", -1, 1, 12, 3, Q("3.17 in")),
    Sketcher.Constraint("DistanceY", -1, 1, 12, 3, Q("1.17 in")),
    Sketcher.Constraint("DistanceX", -1, 1, 16, 3, Q("2.92 in")),
    Sketcher.Constraint("DistanceX", -1, 1, 18, 3, Q("2.59 in")),
    Sketcher.Constraint("DistanceX", -1, 1, 20, 3, Q("2.34 in")),
    Sketcher.Constraint("DistanceX", -1, 1, 22, 3, Q("2.01 in")),
    Sketcher.Constraint("DistanceX", -1, 1, 24, 3, Q("1.76 in")),
    Sketcher.Constraint("DistanceX", -1, 1, 25, 3, Q("1.43 in")),
])
doc.recompute()
hole4 = body.newObject("PartDesign::Hole", "Hole003")
hole4.Profile = sketch7
hole4.ThreadType = "None"
hole4.Diameter = Q("0.11 in")
hole4.DepthType = "Dimension"
hole4.Depth = Q("0.12 in")
hole4.DrillPoint = "Flat"
hole4.Reversed = True

# Sketch on XY plane
sketch8 = body.newObject("Sketcher::SketchObject", "Sketch007")
sketch8.AttachmentSupport = (doc.getObject("XY_Plane"), [""])
sketch8.MapMode = "FlatFace"
sketch8.AttachmentOffset = App.Placement(App.Vector(0, 0, 0.12 * 25.4), App.Rotation())
sketch8.addGeometry(Part.Circle(App.Vector(38.1, -38.1, 0), App.Vector(0, 0, 1), 3.3782), False)
sketch8.addConstraint([
    Sketcher.Constraint("Diameter", 0, Q("0.266 in")),
    Sketcher.Constraint("DistanceX", -1, 1, 0, 3, Q("1.5 in")),
    Sketcher.Constraint("DistanceY", 0, 3, -1, 1, Q("1.5 in")),
])
doc.recompute()
hole5 = body.newObject("PartDesign::Hole", "Hole004")
hole5.Profile = sketch8
hole5.ThreadType = "None"
hole5.Diameter = Q("0.266 in")
hole5.DepthType = "Dimension"
hole5.Depth = Q("0.12 in")
hole5.DrillPoint = "Flat"

doc.recompute()
